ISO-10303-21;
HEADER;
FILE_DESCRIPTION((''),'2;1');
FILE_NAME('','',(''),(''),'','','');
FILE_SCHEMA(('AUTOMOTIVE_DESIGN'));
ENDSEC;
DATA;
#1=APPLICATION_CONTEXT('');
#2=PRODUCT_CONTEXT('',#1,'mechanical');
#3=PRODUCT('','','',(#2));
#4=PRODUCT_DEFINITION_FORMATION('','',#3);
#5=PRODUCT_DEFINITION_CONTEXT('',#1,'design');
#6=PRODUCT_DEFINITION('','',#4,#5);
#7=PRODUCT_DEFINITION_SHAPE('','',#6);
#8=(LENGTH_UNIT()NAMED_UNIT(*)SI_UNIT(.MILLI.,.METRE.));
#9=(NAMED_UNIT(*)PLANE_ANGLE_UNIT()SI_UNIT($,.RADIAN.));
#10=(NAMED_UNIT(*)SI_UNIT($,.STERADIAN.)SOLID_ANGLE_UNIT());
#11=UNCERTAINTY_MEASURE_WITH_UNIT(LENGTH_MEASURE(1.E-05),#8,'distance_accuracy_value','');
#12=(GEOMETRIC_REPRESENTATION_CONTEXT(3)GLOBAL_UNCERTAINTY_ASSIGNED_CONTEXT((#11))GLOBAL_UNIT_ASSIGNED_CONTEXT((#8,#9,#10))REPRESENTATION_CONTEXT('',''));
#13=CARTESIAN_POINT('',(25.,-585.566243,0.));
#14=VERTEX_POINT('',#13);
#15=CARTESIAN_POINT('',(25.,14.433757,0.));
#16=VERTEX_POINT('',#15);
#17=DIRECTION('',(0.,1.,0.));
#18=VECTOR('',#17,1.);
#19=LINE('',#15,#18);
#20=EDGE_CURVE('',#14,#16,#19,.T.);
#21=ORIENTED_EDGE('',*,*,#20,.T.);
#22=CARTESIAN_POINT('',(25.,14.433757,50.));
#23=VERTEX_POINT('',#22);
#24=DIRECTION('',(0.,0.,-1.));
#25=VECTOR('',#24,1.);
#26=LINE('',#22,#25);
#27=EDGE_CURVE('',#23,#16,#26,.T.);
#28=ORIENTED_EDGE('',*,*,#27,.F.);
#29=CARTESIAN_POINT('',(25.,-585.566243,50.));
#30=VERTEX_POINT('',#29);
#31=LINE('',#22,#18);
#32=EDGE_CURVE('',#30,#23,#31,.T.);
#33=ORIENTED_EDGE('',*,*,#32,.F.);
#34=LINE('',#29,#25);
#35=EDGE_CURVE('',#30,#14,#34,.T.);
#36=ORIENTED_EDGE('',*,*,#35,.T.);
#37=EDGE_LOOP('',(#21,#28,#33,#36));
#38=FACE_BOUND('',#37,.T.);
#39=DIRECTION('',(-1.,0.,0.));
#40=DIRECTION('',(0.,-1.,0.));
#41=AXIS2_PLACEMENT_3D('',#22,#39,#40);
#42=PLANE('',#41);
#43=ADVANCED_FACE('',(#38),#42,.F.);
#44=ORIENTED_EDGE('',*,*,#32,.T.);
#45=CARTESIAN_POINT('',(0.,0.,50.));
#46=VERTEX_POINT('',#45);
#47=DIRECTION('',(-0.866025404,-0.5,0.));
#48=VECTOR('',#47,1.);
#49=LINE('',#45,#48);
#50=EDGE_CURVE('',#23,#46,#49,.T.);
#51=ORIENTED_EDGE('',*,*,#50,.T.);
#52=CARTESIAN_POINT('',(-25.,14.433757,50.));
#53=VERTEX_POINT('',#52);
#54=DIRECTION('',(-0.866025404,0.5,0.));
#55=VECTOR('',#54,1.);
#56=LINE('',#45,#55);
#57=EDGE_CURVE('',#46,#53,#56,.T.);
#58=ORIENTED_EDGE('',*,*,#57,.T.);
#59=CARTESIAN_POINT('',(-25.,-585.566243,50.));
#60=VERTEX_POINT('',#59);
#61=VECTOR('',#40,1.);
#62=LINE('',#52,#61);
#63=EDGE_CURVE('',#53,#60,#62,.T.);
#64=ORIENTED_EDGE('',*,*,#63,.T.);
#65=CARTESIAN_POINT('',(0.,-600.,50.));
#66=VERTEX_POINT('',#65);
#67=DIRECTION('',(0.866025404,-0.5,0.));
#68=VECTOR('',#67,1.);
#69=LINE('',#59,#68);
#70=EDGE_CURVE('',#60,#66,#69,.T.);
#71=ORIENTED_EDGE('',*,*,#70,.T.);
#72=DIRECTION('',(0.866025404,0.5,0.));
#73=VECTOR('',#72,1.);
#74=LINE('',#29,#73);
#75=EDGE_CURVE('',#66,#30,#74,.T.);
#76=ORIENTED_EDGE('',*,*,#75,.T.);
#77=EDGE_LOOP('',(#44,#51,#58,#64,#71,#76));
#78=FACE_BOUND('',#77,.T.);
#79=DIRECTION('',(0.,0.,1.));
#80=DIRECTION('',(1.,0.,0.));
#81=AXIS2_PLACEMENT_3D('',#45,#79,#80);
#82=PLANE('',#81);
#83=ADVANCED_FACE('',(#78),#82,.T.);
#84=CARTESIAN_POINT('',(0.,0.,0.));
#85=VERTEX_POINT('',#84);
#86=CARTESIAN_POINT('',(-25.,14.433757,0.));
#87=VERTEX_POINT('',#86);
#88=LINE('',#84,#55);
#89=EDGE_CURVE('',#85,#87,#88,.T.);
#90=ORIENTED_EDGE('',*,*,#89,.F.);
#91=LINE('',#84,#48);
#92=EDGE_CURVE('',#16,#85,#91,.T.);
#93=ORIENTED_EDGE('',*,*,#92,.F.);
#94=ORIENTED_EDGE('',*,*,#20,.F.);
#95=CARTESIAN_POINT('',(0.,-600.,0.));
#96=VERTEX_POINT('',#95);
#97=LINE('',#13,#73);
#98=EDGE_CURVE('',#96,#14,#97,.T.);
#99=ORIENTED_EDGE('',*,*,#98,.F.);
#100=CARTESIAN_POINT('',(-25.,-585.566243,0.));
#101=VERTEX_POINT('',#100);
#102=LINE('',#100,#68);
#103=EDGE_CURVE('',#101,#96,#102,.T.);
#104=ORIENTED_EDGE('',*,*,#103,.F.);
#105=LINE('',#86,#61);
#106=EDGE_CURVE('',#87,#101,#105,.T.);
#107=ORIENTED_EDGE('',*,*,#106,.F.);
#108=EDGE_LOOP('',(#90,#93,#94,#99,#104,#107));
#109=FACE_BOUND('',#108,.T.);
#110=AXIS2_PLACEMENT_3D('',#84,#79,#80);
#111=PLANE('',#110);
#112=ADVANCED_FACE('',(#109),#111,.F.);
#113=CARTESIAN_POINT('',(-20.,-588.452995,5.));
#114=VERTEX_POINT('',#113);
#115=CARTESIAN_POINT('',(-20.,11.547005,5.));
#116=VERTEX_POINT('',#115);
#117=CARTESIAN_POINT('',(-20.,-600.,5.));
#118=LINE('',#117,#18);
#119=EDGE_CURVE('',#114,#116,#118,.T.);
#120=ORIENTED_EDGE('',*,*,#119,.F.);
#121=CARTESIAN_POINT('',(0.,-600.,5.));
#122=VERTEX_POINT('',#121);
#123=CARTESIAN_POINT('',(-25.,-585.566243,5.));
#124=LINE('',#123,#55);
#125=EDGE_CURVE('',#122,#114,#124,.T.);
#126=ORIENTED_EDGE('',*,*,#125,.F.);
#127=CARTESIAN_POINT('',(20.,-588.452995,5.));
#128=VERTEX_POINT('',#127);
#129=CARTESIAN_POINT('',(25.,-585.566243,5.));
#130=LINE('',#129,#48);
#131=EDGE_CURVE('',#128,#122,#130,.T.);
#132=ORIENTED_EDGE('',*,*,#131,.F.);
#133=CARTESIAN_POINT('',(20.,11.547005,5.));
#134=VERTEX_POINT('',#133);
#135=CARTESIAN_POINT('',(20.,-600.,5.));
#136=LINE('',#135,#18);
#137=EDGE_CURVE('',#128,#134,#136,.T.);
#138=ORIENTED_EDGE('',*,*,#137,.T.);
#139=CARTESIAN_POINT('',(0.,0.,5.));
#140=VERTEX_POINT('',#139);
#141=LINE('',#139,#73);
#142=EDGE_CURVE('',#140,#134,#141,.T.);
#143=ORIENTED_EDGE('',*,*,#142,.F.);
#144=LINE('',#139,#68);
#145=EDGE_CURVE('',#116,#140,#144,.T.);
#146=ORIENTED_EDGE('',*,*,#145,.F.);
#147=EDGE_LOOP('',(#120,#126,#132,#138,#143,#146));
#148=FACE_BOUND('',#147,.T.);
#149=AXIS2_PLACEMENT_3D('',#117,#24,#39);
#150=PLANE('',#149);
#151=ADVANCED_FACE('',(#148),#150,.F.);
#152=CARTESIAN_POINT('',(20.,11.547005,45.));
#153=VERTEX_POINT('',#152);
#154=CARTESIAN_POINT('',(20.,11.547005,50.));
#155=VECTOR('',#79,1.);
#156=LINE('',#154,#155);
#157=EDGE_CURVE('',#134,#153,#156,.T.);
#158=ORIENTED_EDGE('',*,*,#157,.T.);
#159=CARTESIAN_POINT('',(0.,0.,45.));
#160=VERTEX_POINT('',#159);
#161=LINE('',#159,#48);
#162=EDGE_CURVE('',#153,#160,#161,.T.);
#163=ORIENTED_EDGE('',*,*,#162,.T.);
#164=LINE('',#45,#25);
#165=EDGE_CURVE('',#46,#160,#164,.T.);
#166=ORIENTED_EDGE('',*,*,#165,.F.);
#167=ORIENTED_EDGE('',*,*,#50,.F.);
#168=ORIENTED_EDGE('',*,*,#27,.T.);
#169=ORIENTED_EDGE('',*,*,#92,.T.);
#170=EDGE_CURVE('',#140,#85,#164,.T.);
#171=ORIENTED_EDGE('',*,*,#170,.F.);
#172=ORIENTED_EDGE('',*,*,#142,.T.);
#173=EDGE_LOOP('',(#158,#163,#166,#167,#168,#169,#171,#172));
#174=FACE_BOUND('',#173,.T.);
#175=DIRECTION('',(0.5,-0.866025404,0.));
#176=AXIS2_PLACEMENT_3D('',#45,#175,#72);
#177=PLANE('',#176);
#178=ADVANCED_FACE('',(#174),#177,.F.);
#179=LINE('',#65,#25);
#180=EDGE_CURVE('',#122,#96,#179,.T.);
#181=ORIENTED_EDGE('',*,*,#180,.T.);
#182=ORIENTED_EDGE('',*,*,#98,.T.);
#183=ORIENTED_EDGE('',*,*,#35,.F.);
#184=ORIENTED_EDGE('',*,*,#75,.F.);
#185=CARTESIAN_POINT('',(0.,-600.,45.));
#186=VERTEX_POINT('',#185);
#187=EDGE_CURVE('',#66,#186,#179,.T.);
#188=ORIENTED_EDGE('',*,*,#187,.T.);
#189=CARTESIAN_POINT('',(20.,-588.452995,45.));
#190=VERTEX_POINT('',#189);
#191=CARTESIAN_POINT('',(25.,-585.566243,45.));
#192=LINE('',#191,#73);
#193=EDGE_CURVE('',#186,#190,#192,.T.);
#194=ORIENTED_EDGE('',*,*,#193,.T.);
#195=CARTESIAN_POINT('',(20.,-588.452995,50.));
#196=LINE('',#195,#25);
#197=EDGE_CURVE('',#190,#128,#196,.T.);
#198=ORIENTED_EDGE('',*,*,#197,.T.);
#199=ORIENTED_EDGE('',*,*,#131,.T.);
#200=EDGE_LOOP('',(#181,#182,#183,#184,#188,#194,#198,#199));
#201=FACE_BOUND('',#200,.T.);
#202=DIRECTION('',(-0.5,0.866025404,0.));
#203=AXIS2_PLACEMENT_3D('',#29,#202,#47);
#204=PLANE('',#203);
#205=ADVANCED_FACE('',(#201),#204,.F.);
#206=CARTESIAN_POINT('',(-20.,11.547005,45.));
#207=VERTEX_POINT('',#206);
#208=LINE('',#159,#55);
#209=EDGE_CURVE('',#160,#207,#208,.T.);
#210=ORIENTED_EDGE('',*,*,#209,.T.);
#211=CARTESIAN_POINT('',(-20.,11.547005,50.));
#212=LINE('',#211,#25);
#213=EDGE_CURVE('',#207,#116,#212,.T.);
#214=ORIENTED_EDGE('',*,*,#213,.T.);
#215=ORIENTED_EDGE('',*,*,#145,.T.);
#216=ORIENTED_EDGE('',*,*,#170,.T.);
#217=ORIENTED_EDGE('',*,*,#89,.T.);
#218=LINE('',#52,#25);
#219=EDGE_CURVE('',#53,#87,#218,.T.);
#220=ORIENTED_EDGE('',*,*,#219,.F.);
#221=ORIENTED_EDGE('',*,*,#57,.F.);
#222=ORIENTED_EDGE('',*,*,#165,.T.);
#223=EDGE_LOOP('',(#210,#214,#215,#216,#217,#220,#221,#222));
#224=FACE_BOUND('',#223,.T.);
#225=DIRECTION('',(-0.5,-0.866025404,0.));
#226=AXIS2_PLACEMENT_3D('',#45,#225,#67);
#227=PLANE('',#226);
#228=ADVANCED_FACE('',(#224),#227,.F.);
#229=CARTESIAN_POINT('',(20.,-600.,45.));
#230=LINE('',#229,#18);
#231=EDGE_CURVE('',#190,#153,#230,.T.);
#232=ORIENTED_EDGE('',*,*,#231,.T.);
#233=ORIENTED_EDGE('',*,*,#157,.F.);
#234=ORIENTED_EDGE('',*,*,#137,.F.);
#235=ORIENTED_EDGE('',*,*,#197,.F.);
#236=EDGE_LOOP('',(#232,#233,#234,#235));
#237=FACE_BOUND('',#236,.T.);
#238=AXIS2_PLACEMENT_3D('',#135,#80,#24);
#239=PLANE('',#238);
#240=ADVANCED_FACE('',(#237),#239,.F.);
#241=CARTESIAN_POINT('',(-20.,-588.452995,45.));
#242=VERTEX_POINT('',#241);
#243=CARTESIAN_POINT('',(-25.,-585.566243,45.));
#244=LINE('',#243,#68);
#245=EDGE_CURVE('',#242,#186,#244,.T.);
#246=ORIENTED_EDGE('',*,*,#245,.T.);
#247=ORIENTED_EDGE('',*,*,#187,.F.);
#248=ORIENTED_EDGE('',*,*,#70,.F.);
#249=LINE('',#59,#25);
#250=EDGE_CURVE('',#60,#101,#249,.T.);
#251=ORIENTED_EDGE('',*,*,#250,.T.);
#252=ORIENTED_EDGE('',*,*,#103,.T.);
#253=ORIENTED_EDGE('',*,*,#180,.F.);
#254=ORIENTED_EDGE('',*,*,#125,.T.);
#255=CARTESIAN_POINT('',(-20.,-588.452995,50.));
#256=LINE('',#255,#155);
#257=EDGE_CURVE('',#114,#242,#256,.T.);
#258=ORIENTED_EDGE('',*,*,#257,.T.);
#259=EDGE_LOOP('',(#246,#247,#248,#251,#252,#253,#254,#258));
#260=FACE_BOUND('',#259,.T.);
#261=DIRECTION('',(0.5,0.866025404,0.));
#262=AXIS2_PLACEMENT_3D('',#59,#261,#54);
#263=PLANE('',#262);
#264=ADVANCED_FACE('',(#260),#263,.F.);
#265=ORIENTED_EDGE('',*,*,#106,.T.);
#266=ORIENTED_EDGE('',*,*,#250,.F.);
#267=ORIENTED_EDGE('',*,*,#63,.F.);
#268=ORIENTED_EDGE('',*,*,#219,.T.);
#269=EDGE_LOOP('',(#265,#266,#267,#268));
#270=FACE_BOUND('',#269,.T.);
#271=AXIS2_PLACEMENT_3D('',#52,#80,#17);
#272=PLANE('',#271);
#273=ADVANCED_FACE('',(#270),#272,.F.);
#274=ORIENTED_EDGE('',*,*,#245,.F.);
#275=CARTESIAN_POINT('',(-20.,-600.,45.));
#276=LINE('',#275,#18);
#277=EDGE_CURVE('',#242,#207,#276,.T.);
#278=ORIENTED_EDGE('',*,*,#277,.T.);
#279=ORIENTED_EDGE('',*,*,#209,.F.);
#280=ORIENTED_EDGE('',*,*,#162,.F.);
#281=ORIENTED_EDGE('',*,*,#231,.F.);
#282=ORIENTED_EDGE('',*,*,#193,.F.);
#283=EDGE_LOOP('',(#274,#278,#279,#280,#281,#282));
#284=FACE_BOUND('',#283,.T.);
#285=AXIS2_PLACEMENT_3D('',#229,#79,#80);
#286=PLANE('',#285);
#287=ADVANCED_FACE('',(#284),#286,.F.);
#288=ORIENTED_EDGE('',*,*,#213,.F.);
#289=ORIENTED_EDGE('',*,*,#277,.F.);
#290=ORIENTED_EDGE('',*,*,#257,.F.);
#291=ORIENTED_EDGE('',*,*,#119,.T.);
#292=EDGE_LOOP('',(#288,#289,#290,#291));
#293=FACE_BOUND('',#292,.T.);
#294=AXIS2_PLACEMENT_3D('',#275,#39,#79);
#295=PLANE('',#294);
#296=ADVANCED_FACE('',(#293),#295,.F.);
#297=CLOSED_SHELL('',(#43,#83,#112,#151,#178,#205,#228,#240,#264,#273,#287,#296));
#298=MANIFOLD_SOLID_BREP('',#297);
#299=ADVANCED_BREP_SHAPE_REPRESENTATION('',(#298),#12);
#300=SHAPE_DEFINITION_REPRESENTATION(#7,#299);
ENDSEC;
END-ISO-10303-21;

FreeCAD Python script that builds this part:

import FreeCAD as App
import Part
import Sketcher
from FreeCAD import Vector
Q = App.Units.Quantity

doc = App.newDocument("Part")
body = doc.addObject("PartDesign::Body", "Body")

sketch1 = body.newObject("Sketcher::SketchObject", "Sketch")
sketch1.AttachmentSupport = (doc.getObject("XY_Plane"), [""])
sketch1.MapMode = "FlatFace"
sketch1.addGeometry([
    Part.LineSegment(Vector(25, 14.433757, 0), Vector(0, 0, 0)),
    Part.LineSegment(Vector(0, 0, 0), Vector(-25, 14.433757, 0)),
    Part.LineSegment(Vector(-25, 14.433757, 0), Vector(-25, -585.566243, 0)),
    Part.LineSegment(Vector(-25, -585.566243, 0), Vector(0, -600, 0)),
    Part.LineSegment(Vector(0, -600, 0), Vector(25, -585.566243, 0)),
    Part.LineSegment(Vector(25, -585.566243, 0), Vector(25, 14.433757, 0)),
], False)
sketch1.addConstraint([
    Sketcher.Constraint("Coincident", 0, 2, 1, 1),
    Sketcher.Constraint("Coincident", 1, 2, 2, 1),
    Sketcher.Constraint("Coincident", 2, 2, 3, 1),
    Sketcher.Constraint("Coincident", 3, 2, 4, 1),
    Sketcher.Constraint("Coincident", 4, 2, 5, 1),
    Sketcher.Constraint("Coincident", 5, 2, 0, 1),
    Sketcher.Constraint("Vertical", 2),
    Sketcher.Constraint("Vertical", 5),
    Sketcher.Constraint("Coincident", 0, 2, -1, 1),
    Sketcher.Constraint("Symmetric", 2, 2, 4, 2, -2),
    Sketcher.Constraint("PointOnObject", 3, 2, -2),
    Sketcher.Constraint("Parallel", 1, 3),
    Sketcher.Constraint("Parallel", 0, 4),
    Sketcher.Constraint("DistanceY", 2, 2, 2, 1, Q("600 mm")),
    Sketcher.Constraint("Angle", 0, Q("-150 deg")),
    Sketcher.Constraint("DistanceX", 1, 2, -1, 1, Q("25 mm")),
])
pad1 = body.newObject("PartDesign::Pad", "Pad")
pad1.Profile = sketch1
pad1.Length = 50

sketch2 = body.newObject("Sketcher::SketchObject", "Sketch001")
sketch2.AttachmentSupport = (doc.getObject("XZ_Plane"), [""])
sketch2.MapMode = "FlatFace"
sketch2.addGeometry([
    Part.LineSegment(Vector(-20, 5, 0), Vector(-20, 45, 0)),
    Part.LineSegment(Vector(-20, 45, 0), Vector(20, 45, 0)),
    Part.LineSegment(Vector(20, 45, 0), Vector(20, 5, 0)),
    Part.LineSegment(Vector(20, 5, 0), Vector(-20, 5, 0)),
], False)
sketch2.addConstraint([
    Sketcher.Constraint("Coincident", 0, 2, 1, 1),
    Sketcher.Constraint("Coincident", 1, 2, 2, 1),
    Sketcher.Constraint("Coincident", 2, 2, 3, 1),
    Sketcher.Constraint("Coincident", 3, 2, 0, 1),
    Sketcher.Constraint("Vertical", 0),
    Sketcher.Constraint("Horizontal", 1),
    Sketcher.Constraint("Vertical", 2),
    Sketcher.Constraint("Horizontal", 3),
    Sketcher.Constraint("Equal", 3, 0),
    Sketcher.Constraint("DistanceX", 1, 1, 1, 2, Q("40 mm")),
    Sketcher.Constraint("DistanceX", 0, 2, -1, 1, Q("20 mm")),
    Sketcher.Constraint("DistanceY", -1, 1, 0, 2, Q("45 mm")),
])
pocket1 = body.newObject("PartDesign::Pocket", "Pocket")
pocket1.Profile = sketch2
pocket1.Type = "ThroughAll"
pocket1.Midplane = True

doc.recompute()
